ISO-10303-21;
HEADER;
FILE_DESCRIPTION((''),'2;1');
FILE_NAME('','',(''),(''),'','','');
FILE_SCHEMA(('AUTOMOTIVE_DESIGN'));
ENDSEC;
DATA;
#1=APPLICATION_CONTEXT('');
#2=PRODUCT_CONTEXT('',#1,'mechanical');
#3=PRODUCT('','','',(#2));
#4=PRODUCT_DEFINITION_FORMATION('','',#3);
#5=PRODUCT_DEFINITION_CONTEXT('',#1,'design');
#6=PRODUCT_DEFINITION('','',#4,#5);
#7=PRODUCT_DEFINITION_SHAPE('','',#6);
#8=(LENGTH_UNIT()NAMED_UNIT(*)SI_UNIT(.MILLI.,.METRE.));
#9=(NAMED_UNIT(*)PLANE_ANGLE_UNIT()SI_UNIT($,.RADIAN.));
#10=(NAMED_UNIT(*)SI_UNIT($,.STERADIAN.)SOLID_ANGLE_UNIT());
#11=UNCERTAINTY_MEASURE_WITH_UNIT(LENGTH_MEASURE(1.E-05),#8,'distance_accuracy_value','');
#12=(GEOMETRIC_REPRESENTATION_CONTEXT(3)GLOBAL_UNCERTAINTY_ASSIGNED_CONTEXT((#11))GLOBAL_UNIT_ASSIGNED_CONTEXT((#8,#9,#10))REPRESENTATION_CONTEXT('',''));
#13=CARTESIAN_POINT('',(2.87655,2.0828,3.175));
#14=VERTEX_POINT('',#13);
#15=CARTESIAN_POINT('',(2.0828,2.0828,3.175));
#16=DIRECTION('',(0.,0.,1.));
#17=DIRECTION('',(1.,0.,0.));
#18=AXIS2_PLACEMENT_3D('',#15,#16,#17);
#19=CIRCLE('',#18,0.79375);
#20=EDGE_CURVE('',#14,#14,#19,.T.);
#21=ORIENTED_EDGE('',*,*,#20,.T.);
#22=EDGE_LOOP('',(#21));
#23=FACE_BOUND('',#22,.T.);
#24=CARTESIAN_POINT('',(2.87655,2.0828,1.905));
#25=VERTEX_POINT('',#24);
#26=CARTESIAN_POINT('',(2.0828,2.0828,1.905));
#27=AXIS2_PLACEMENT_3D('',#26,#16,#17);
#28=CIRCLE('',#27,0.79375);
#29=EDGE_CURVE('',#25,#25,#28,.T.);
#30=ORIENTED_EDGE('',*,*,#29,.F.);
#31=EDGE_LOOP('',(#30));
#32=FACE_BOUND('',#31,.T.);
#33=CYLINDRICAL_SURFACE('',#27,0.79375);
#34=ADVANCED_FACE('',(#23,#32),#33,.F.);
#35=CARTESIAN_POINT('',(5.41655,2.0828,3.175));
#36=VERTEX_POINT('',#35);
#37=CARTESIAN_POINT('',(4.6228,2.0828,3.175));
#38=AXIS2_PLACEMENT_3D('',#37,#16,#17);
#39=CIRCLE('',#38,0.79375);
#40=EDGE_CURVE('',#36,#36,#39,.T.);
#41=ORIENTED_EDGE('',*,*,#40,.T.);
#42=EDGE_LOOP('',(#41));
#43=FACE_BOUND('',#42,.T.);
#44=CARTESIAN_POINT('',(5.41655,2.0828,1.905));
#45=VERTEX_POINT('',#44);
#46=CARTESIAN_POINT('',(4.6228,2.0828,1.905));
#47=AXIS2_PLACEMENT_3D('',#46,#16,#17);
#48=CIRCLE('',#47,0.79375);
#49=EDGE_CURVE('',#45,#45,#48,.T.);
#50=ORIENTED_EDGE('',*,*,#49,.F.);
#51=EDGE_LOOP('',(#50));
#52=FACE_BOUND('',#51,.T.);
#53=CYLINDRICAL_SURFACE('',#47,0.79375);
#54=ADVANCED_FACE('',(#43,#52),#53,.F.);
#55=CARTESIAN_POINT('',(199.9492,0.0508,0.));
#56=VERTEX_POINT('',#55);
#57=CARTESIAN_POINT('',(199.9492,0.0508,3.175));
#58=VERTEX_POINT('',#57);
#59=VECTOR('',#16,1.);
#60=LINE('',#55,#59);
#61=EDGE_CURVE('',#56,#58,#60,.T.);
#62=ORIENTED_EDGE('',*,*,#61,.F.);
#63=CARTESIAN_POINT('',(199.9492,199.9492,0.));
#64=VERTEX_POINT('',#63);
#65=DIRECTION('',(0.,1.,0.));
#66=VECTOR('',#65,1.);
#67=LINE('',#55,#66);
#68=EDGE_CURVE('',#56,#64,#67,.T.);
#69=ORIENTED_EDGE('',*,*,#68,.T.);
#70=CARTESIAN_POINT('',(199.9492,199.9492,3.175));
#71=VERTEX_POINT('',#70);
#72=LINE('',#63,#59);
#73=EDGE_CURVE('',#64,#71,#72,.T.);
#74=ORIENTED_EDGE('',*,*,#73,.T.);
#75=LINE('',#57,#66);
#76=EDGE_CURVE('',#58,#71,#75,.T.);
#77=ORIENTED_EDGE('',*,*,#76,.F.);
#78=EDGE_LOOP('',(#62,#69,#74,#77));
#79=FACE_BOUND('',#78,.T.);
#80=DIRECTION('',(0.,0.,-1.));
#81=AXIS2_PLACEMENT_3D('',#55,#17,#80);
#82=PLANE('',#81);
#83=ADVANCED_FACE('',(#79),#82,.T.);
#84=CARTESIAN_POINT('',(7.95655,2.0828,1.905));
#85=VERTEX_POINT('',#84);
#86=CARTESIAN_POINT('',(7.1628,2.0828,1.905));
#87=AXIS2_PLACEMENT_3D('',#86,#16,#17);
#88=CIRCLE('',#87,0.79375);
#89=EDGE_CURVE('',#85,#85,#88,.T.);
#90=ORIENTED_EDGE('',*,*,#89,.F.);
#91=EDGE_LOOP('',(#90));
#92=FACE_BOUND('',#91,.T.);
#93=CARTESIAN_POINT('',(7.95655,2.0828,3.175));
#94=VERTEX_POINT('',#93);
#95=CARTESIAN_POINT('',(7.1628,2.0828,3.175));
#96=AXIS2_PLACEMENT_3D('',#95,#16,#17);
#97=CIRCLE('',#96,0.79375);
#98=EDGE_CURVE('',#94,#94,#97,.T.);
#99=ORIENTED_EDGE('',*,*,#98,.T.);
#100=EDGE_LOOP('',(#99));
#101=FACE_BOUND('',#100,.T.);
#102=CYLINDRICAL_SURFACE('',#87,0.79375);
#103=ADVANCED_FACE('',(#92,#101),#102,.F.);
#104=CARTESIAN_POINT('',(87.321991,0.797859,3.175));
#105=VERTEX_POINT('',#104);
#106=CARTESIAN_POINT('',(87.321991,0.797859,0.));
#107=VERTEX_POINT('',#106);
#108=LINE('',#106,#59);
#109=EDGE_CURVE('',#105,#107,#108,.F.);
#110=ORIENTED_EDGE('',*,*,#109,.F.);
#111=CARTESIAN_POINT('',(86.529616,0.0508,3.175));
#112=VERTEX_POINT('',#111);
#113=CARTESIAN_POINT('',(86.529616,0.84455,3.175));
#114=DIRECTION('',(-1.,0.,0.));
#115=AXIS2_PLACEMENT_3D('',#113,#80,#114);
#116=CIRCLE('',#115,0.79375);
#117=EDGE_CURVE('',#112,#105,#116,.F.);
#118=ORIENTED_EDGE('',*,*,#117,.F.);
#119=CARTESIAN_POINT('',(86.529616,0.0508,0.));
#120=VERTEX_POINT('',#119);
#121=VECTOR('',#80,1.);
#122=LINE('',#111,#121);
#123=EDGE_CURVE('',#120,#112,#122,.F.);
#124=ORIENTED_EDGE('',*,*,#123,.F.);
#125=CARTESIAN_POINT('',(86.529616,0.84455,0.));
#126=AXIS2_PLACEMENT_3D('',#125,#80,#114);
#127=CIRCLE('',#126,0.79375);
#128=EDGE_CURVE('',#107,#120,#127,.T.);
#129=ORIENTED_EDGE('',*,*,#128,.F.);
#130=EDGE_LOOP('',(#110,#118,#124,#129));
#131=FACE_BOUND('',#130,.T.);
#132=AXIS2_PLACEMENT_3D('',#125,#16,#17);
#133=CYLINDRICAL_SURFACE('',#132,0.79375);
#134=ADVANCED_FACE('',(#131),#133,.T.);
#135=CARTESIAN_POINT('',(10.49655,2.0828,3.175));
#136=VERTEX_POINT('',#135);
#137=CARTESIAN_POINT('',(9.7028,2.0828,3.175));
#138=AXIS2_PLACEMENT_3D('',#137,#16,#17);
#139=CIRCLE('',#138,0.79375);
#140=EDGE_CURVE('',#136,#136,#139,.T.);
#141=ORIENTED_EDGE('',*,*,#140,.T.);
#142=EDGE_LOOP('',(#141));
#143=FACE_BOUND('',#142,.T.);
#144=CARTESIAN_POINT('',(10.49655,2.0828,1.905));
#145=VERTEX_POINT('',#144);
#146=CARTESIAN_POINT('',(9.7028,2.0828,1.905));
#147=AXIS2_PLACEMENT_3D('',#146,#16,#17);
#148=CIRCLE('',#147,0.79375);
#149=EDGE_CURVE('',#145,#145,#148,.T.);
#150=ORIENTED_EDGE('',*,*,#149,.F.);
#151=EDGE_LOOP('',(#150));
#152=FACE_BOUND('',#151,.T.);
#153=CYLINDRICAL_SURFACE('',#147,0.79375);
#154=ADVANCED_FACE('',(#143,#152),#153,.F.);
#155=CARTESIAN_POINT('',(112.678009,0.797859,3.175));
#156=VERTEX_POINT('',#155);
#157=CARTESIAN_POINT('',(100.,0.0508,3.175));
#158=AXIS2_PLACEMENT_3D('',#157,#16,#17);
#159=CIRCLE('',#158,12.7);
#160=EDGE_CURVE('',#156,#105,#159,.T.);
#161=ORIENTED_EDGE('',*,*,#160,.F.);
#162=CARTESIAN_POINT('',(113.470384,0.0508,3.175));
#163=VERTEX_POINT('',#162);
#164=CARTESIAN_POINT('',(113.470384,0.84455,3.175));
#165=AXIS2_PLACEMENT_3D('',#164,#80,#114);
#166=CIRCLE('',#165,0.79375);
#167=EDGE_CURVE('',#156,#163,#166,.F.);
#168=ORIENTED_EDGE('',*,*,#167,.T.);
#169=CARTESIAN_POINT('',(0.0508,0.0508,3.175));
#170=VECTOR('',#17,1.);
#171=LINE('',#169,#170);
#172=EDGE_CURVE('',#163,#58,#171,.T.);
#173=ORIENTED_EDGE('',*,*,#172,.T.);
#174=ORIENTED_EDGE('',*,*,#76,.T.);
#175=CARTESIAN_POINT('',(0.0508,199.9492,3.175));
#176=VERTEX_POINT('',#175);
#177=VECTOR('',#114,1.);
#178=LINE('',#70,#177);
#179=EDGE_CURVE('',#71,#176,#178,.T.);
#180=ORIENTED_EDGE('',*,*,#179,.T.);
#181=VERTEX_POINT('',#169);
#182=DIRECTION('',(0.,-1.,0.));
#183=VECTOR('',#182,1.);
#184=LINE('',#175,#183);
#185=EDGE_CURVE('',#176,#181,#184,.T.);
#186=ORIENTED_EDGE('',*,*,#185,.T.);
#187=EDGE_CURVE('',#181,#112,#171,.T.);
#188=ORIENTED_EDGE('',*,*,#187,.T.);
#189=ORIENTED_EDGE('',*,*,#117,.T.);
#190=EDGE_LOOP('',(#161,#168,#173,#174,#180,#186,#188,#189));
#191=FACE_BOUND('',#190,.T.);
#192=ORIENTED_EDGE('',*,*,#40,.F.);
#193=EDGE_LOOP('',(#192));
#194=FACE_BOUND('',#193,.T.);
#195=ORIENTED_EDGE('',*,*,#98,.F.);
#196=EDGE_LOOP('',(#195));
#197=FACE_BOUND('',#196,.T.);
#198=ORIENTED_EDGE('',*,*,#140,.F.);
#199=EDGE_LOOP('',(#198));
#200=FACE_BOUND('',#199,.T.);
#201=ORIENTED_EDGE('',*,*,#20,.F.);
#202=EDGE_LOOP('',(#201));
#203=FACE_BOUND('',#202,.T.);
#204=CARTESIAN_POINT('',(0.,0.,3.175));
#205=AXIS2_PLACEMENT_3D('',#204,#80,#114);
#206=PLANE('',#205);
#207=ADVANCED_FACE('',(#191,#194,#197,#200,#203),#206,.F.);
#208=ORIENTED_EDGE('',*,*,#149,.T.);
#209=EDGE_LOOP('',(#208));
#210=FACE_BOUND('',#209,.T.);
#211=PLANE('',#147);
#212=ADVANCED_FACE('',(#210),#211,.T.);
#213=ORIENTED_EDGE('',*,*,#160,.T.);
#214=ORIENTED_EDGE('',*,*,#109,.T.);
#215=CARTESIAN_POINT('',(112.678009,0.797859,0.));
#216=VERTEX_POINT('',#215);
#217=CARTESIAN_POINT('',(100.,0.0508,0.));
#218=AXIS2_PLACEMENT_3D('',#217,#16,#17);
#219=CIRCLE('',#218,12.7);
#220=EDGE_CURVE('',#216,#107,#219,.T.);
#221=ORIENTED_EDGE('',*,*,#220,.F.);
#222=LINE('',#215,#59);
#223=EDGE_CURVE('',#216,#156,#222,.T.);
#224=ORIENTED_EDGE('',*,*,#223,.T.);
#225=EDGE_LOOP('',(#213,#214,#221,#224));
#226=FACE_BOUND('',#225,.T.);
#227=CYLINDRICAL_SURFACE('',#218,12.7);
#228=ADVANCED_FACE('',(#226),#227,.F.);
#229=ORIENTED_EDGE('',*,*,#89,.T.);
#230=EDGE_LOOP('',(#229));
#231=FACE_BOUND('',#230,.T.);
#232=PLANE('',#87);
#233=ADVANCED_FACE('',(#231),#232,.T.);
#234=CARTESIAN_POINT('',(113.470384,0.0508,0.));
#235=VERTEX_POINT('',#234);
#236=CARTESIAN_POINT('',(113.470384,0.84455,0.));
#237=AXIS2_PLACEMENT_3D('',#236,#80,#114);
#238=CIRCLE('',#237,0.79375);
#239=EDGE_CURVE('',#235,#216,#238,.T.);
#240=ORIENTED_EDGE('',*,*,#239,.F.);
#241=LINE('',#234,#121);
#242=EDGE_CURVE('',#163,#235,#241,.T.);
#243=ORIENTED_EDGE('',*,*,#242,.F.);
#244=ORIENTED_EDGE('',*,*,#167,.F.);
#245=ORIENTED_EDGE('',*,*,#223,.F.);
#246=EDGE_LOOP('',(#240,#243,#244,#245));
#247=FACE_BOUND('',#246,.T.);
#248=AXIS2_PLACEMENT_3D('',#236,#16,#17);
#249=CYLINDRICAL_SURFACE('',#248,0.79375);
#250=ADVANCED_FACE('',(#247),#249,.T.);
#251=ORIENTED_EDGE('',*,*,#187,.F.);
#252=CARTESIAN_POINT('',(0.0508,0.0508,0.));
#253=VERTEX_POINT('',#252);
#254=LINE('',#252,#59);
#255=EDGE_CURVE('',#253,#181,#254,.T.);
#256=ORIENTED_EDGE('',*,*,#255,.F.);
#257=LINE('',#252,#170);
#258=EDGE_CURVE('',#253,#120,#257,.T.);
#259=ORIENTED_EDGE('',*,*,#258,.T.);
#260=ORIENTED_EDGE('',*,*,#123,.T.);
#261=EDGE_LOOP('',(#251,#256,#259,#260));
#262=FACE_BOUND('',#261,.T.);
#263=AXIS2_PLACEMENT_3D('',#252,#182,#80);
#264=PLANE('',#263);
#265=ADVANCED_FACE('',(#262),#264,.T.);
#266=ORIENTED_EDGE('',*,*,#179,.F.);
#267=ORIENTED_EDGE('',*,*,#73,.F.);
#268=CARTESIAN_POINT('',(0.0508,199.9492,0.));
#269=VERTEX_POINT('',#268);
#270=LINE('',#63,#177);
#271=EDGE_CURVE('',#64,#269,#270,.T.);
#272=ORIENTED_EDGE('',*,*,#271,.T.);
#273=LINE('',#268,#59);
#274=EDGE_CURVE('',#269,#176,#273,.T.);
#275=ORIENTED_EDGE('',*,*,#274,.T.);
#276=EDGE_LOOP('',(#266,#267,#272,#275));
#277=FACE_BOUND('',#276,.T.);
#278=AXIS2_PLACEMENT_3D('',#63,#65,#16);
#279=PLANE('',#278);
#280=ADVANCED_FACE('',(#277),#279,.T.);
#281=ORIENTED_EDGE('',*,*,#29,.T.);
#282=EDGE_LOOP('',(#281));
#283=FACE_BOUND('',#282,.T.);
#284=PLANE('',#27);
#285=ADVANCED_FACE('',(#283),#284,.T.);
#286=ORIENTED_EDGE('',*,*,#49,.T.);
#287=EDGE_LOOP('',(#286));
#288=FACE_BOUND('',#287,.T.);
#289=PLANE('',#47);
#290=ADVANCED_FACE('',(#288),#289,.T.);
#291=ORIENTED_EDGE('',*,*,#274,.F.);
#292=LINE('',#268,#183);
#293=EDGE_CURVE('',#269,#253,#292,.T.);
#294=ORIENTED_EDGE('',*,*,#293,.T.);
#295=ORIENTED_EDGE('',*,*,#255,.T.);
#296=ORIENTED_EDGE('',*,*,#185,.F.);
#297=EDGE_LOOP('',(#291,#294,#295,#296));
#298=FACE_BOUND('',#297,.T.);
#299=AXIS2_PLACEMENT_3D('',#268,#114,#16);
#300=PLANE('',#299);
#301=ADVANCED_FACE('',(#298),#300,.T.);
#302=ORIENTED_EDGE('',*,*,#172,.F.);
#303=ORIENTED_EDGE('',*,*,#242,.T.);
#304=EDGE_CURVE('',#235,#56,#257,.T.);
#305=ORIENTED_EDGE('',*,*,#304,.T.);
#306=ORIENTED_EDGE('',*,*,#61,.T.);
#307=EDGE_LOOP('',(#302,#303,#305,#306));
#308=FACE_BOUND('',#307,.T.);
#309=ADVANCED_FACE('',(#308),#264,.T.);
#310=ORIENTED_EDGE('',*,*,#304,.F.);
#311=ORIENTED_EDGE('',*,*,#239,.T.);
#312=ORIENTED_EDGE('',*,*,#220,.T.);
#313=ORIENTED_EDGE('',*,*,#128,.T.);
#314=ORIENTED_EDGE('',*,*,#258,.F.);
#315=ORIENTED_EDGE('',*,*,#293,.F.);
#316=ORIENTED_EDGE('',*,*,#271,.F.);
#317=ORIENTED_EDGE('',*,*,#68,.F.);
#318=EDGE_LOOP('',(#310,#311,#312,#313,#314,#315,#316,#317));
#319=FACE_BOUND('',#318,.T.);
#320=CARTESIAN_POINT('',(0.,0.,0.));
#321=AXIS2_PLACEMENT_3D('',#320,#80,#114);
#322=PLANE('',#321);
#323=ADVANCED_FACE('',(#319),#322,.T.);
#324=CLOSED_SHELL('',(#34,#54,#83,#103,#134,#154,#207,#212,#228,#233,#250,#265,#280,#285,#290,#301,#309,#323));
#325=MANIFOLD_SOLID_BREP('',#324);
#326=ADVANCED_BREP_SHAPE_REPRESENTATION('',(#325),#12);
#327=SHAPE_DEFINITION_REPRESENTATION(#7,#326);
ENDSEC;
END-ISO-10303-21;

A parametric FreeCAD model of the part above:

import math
import FreeCAD as App
import Part
import Sketcher
from FreeCAD import Vector
Q = App.Units.Quantity


def edges_at(feature, points):
    """Names of the edges that pass closest to the given points."""
    edges = feature.Shape.Edges
    near = lambda p: min(range(len(edges)), key=lambda i: edges[i].distToShape(Part.Vertex(*p))[0])
    return sorted({f"Edge{near(p) + 1}" for p in points})

doc = App.newDocument("Part")
body = doc.addObject("PartDesign::Body", "Body")

sketch1 = body.newObject("Sketcher::SketchObject", "Sketch")
sketch1.AttachmentSupport = (doc.getObject("XY_Plane"), [""])
sketch1.MapMode = "FlatFace"
sketch1.addGeometry([
    Part.LineSegment(Vector(0, 200, 0), Vector(0, 0, 0)),
    Part.LineSegment(Vector(0, 0, 0), Vector(200, 0, 0)),
    Part.LineSegment(Vector(200, 0, 0), Vector(200, 200, 0)),
    Part.LineSegment(Vector(200, 200, 0), Vector(0, 200, 0)),
], False)
sketch1.addConstraint([
    Sketcher.Constraint("Coincident", 0, 2, 1, 1),
    Sketcher.Constraint("Coincident", 1, 2, 2, 1),
    Sketcher.Constraint("Coincident", 2, 2, 3, 1),
    Sketcher.Constraint("Coincident", 3, 2, 0, 1),
    Sketcher.Constraint("Vertical", 0),
    Sketcher.Constraint("Horizontal", 1),
    Sketcher.Constraint("Vertical", 2),
    Sketcher.Constraint("Horizontal", 3),
    Sketcher.Constraint("Coincident", 0, 2, -1, 1),
    Sketcher.Constraint("Equal", 3, 0),
    Sketcher.Constraint("DistanceX", 1, 1, 1, 2, 200.0),
])
pad1 = body.newObject("PartDesign::Pad", "Pad")
pad1.Profile = sketch1
pad1.Length = Q("0.125 in")

sketch2 = body.newObject("Sketcher::SketchObject", "Sketch001")
sketch2.AttachmentSupport = (doc.getObject("XY_Plane"), [""])
sketch2.MapMode = "FlatFace"
sketch2.AttachmentOffset = App.Placement(Vector(0, 0, 0.125 * 25.4), App.Rotation())
sketch2.addGeometry([
    Part.LineSegment(Vector(0, 200, 0), Vector(0, 0, 0)),
    Part.LineSegment(Vector(0, 0, 0), Vector(200, 0, 0)),
    Part.LineSegment(Vector(200, 0, 0), Vector(200, 200, 0)),
    Part.LineSegment(Vector(200, 200, 0), Vector(0, 200, 0)),
    Part.LineSegment(Vector(200, 0, 0), Vector(0, 0, 0)),
    Part.LineSegment(Vector(0, 0, 0), Vector(0, 200, 0)),
    Part.LineSegment(Vector(0, 200, 0), Vector(200, 200, 0)),
    Part.LineSegment(Vector(200, 200, 0), Vector(200, 0, 0)),
], False)
sketch2.addConstraint([
    Sketcher.Constraint("Coincident", 0, 2, 1, 1),
    Sketcher.Constraint("Coincident", 1, 2, 2, 1),
    Sketcher.Constraint("Coincident", 2, 2, 3, 1),
    Sketcher.Constraint("Coincident", 3, 2, 0, 1),
    Sketcher.Constraint("Coincident", 4, 2, 5, 1),
    Sketcher.Constraint("Coincident", 5, 2, 6, 1),
    Sketcher.Constraint("Coincident", 6, 2, 7, 1),
    Sketcher.Constraint("Coincident", 7, 2, 4, 1),
    Sketcher.Constraint("Vertical", 0),
    Sketcher.Constraint("Horizontal", 1),
    Sketcher.Constraint("Vertical", 2),
    Sketcher.Constraint("Horizontal", 3),
    Sketcher.Constraint("Horizontal", 4),
    Sketcher.Constraint("Vertical", 5),
    Sketcher.Constraint("Horizontal", 6),
    Sketcher.Constraint("Vertical", 7),
    Sketcher.Constraint("Coincident", 0, 2, -1, 1),
    Sketcher.Constraint("Equal", 3, 0),
    Sketcher.Constraint("Equal", 6, 5),
    Sketcher.Constraint("DistanceX", -1, 1, 4, 2, Q("0.002 in")),
    Sketcher.Constraint("DistanceY", -1, 1, 4, 2, Q("0.002 in")),
    Sketcher.Constraint("DistanceY", 5, 2, 3, 2, Q("0.002 in")),
    Sketcher.Constraint("DistanceX", 1, 1, 1, 2, 200.0),
])
pocket1 = body.newObject("PartDesign::Pocket", "Pocket")
pocket1.Profile = sketch2
pocket1.Type = "ThroughAll"

sketch3 = body.newObject("Sketcher::SketchObject", "Sketch002")
sketch3.AttachmentSupport = (doc.getObject("XY_Plane"), [""])
sketch3.MapMode = "FlatFace"
sketch3.AttachmentOffset = App.Placement(Vector(0, 0, 0.125 * 25.4), App.Rotation())
sketch3.addGeometry([
    Part.LineSegment(Vector(87, 0, 0), Vector(113, 0, 0)),
    Part.ArcOfCircle(Part.Circle(Vector(100, 0, 0), Vector(0, 0, 1), 13), math.radians(0), math.radians(180)),
], False)
sketch3.addConstraint([
    Sketcher.Constraint("Coincident", 0, 1, 1, 2),
    Sketcher.Constraint("Coincident", 1, 1, 0, 2),
    Sketcher.Constraint("Horizontal", 0),
    Sketcher.Constraint("Horizontal", 1, 3, 0, 1),
    Sketcher.Constraint("Radius", 1, Q("0.5 in")),
    Sketcher.Constraint("DistanceY", -1, 1, 1, 3, Q("0.002 in")),
    Sketcher.Constraint("DistanceX", -1, 1, 1, 3, 100.0),
])
pocket2 = body.newObject("PartDesign::Pocket", "Pocket001")
pocket2.Profile = sketch3
pocket2.Length = Q("0.125 in")
doc.recompute()

fillet = body.newObject("PartDesign::Fillet", "Fillet")
fillet.Base = (pocket2, edges_at(pocket2, [(87.3, 0.051, 1.587), (112.7, 0.051, 1.587)]))
fillet.Radius = Q("0.03125 in")

sketch4 = body.newObject("Sketcher::SketchObject", "Sketch003")
sketch4.AttachmentSupport = (doc.getObject("XY_Plane"), [""])
sketch4.MapMode = "FlatFace"
sketch4.AttachmentOffset = App.Placement(Vector(0, 0, 0.125 * 25.4), App.Rotation())
sketch4.addGeometry(Part.Circle(Vector(2.1, 2.1, 0), Vector(0, 0, 1), 0.8), False)
sketch4.addConstraint([
    Sketcher.Constraint("Diameter", 0, Q("0.0625 in")),
    Sketcher.Constraint("DistanceX", -1, 1, 0, 3, Q("0.082 in")),
    Sketcher.Constraint("DistanceY", -1, 1, 0, 3, Q("0.082 in")),
])
pocket3 = body.newObject("PartDesign::Pocket", "Pocket002")
pocket3.Profile = sketch4
pocket3.Length = Q("0.05 in")
doc.recompute()

linearpattern = body.newObject("PartDesign::LinearPattern", "LinearPattern")
linearpattern.Originals = [pocket3]
linearpattern.Direction = (doc.getObject("X_Axis"), [""])
linearpattern.Mode = "offset"
linearpattern.Offset = Q("0.1 in")
linearpattern.Occurrences = 4
body.Tip = linearpattern

doc.recompute()
